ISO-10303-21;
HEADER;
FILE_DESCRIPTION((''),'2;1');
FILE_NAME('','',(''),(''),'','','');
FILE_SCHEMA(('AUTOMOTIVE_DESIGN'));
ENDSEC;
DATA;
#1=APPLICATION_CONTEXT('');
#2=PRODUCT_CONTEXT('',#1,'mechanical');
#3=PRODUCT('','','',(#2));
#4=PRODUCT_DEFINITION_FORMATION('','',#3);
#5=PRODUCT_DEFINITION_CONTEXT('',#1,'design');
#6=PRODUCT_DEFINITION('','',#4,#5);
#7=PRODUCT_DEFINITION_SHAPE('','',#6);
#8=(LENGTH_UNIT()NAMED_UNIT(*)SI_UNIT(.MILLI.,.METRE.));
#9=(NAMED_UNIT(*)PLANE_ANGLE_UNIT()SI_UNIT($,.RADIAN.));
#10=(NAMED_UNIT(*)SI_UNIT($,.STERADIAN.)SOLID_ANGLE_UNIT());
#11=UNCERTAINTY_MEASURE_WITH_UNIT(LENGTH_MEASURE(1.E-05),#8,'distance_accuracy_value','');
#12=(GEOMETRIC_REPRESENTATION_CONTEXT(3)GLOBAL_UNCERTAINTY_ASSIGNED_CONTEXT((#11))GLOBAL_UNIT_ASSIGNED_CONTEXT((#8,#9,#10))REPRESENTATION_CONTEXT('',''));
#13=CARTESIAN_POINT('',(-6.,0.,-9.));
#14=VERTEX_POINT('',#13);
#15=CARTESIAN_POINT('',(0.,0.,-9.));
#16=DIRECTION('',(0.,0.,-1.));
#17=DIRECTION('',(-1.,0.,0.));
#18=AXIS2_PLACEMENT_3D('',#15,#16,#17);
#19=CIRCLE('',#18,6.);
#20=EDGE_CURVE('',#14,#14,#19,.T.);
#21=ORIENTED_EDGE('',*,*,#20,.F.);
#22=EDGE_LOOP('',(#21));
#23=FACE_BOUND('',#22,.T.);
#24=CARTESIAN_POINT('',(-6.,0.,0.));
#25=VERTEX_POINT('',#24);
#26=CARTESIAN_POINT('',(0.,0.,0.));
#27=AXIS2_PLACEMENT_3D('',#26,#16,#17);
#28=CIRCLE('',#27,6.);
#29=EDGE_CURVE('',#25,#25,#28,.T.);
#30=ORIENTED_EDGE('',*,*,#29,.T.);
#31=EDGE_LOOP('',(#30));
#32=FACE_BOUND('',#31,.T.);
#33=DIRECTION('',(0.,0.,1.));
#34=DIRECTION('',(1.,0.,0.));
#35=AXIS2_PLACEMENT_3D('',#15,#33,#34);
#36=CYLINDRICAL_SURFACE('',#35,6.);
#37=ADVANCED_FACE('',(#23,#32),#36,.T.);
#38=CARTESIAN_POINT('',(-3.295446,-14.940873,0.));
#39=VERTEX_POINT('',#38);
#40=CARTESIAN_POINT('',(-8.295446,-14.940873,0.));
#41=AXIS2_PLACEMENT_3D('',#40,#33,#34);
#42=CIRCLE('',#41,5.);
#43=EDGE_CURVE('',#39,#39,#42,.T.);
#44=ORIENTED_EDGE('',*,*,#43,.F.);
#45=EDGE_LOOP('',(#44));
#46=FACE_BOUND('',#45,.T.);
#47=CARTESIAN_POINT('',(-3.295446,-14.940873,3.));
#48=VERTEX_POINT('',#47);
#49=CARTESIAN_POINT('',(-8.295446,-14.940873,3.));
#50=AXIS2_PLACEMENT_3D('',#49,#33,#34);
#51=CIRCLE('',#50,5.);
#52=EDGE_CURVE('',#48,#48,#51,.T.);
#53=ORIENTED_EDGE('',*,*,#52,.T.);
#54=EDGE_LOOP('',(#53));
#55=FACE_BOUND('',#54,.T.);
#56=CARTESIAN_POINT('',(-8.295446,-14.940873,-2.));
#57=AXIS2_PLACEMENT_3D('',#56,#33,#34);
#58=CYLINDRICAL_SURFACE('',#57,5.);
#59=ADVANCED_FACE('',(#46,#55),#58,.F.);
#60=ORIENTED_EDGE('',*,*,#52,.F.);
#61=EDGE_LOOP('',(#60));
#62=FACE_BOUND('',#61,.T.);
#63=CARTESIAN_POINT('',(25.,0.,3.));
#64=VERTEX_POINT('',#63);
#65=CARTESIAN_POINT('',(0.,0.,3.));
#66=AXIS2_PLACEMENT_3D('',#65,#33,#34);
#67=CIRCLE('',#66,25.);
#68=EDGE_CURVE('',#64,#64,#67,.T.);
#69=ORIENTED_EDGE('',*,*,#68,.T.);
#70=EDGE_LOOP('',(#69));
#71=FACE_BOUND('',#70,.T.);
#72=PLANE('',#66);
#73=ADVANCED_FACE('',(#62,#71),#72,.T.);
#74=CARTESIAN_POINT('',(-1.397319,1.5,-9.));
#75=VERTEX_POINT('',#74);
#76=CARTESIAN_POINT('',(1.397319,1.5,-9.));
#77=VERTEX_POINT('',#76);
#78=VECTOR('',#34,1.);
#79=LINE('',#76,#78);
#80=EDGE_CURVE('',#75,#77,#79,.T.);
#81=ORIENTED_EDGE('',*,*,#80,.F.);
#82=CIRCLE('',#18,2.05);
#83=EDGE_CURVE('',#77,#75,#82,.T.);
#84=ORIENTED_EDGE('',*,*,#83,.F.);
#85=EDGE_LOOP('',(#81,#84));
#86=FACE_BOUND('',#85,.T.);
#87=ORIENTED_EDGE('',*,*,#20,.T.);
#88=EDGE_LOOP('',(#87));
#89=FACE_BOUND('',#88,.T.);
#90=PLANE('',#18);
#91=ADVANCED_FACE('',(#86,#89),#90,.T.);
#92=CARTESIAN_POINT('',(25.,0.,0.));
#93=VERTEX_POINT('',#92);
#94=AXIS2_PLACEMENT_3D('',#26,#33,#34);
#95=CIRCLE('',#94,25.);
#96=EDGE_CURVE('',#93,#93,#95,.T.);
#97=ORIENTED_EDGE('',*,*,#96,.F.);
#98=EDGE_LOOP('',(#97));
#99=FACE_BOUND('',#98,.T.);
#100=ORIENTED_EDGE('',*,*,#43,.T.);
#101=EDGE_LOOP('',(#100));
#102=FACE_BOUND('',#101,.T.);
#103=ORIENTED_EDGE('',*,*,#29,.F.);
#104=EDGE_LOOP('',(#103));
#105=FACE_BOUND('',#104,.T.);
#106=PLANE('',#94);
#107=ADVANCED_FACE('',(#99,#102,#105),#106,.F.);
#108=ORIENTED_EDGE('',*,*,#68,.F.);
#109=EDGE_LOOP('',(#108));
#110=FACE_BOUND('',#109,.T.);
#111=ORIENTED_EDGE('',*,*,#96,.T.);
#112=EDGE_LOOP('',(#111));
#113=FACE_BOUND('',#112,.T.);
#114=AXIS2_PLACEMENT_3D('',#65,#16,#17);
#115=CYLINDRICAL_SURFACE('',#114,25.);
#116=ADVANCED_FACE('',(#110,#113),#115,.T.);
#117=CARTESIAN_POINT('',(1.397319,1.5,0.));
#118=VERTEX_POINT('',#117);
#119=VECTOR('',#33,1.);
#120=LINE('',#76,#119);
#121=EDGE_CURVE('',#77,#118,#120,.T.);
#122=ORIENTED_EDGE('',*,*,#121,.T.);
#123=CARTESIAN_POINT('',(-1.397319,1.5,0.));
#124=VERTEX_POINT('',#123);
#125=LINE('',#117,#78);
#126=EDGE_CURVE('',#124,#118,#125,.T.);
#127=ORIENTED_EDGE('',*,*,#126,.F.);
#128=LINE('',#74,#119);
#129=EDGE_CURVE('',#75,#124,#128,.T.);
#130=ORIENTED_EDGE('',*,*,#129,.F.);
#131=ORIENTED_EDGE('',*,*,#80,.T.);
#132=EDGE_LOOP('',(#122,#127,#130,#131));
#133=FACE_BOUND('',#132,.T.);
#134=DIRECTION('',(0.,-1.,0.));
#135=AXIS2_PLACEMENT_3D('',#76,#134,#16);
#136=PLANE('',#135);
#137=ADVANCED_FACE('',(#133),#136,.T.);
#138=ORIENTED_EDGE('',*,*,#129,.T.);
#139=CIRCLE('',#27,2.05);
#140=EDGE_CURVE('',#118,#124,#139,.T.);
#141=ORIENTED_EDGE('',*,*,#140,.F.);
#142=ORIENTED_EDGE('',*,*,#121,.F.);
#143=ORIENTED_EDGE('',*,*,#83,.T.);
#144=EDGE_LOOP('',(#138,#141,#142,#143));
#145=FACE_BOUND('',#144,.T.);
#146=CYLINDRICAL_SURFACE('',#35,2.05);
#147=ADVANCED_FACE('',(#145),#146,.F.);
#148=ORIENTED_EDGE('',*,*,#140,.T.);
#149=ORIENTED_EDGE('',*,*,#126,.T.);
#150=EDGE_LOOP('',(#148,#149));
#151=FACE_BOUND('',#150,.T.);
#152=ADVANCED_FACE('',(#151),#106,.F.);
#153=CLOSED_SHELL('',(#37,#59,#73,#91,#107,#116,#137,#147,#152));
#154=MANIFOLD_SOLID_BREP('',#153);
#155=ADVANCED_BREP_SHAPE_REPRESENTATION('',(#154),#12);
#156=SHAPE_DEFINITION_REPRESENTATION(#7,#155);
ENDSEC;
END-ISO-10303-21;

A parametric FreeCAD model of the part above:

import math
import FreeCAD as App
import Part
import Sketcher

V = App.Vector
Q = App.Units.Quantity

doc = App.newDocument("Part")
params = doc.addObject("Spreadsheet::Sheet", "Params")
for row, (alias, value) in enumerate([
    ("sketch1_diameter", "50 mm"),
    ("pad1_length", "3 mm"),
    ("sketch2_diameter", "12 mm"),
    ("sketch2_radius", "2.05 mm"),
    ("pad2_length", "9 mm"),
    ("sketch3_diameter", "10 mm"),
    ("pocket1_length", "5 mm"),
], start=1):
    params.set(f"A{row}", alias)
    params.set(f"B{row}", "=" + value)
    params.setAlias(f"B{row}", alias)

body = doc.addObject("PartDesign::Body", "Body")

# Sketch on XY plane
sketch1 = body.newObject("Sketcher::SketchObject", "Sketch")
sketch1.AttachmentSupport = (doc.getObject("XY_Plane"), [""])
sketch1.MapMode = "FlatFace"
sketch1.addGeometry(Part.Circle(V(0, 0, 0), V(0, 0, 1), 25), False)
sketch1.addConstraint([
    Sketcher.Constraint("Coincident", 0, 3, -1, 1),
    Sketcher.Constraint("Diameter", 0, Q("50 mm")),
])
sketch1.setExpression("Constraints[1]", "Params.sketch1_diameter")
pad1 = body.newObject("PartDesign::Pad", "Pad")
pad1.Profile = sketch1
pad1.setExpression("Length", "Params.pad1_length")

# Sketch on XY plane
sketch2 = body.newObject("Sketcher::SketchObject", "Sketch001")
sketch2.AttachmentSupport = (doc.getObject("XY_Plane"), [""])
sketch2.MapMode = "FlatFace"
sketch2.addGeometry([
    Part.Circle(V(0, 0, 0), V(0, 0, 1), 6),
    Part.ArcOfCircle(Part.Circle(V(0, 0, 0), V(0, 0, 1), 2.05), math.radians(132.970284), math.radians(407.029716)),
    Part.LineSegment(V(1.397319, 1.5, 0), V(-1.397319, 1.5, 0)),
], False)
sketch2.addConstraint([
    Sketcher.Constraint("Coincident", 1, 1, 2, 2),
    Sketcher.Constraint("Coincident", 2, 1, 1, 2),
    Sketcher.Constraint("Horizontal", 2),
    Sketcher.Constraint("Coincident", 0, 3, -1, 1),
    Sketcher.Constraint("Coincident", 1, 3, -1, 1),
    Sketcher.Constraint("Diameter", 0, Q("12 mm")),
    Sketcher.Constraint("Radius", 1, Q("2.05 mm")),
    Sketcher.Constraint("DistanceY", -1, 1, 1, 1, Q("1.5 mm")),
])
sketch2.setExpression("Constraints[5]", "Params.sketch2_diameter")
sketch2.setExpression("Constraints[6]", "Params.sketch2_radius")
pad2 = body.newObject("PartDesign::Pad", "Pad001")
pad2.Profile = sketch2
pad2.setExpression("Length", "Params.pad2_length")
pad2.Reversed = True

# Sketch on XY plane
sketch3 = body.newObject("Sketcher::SketchObject", "Sketch002")
sketch3.AttachmentSupport = (doc.getObject("XY_Plane"), [""])
sketch3.MapMode = "FlatFace"
sketch3.AttachmentOffset = App.Placement(V(0, 0, 3), App.Rotation())
sketch3.addGeometry(Part.Circle(V(-8.295446, -14.940873, 0), V(0, 0, 1), 5), False)
sketch3.addConstraint([
    Sketcher.Constraint("Diameter", 0, Q("10 mm")),
    Sketcher.Constraint("DistanceX", 0, 3, -1, 1, Q("8.295446 mm")),
    Sketcher.Constraint("DistanceY", 0, 3, -1, 1, Q("14.940873 mm")),
])
sketch3.setExpression("Constraints[0]", "Params.sketch3_diameter")
pocket1 = body.newObject("PartDesign::Pocket", "Pocket")
pocket1.Profile = sketch3
pocket1.setExpression("Length", "Params.pocket1_length")

doc.recompute()
